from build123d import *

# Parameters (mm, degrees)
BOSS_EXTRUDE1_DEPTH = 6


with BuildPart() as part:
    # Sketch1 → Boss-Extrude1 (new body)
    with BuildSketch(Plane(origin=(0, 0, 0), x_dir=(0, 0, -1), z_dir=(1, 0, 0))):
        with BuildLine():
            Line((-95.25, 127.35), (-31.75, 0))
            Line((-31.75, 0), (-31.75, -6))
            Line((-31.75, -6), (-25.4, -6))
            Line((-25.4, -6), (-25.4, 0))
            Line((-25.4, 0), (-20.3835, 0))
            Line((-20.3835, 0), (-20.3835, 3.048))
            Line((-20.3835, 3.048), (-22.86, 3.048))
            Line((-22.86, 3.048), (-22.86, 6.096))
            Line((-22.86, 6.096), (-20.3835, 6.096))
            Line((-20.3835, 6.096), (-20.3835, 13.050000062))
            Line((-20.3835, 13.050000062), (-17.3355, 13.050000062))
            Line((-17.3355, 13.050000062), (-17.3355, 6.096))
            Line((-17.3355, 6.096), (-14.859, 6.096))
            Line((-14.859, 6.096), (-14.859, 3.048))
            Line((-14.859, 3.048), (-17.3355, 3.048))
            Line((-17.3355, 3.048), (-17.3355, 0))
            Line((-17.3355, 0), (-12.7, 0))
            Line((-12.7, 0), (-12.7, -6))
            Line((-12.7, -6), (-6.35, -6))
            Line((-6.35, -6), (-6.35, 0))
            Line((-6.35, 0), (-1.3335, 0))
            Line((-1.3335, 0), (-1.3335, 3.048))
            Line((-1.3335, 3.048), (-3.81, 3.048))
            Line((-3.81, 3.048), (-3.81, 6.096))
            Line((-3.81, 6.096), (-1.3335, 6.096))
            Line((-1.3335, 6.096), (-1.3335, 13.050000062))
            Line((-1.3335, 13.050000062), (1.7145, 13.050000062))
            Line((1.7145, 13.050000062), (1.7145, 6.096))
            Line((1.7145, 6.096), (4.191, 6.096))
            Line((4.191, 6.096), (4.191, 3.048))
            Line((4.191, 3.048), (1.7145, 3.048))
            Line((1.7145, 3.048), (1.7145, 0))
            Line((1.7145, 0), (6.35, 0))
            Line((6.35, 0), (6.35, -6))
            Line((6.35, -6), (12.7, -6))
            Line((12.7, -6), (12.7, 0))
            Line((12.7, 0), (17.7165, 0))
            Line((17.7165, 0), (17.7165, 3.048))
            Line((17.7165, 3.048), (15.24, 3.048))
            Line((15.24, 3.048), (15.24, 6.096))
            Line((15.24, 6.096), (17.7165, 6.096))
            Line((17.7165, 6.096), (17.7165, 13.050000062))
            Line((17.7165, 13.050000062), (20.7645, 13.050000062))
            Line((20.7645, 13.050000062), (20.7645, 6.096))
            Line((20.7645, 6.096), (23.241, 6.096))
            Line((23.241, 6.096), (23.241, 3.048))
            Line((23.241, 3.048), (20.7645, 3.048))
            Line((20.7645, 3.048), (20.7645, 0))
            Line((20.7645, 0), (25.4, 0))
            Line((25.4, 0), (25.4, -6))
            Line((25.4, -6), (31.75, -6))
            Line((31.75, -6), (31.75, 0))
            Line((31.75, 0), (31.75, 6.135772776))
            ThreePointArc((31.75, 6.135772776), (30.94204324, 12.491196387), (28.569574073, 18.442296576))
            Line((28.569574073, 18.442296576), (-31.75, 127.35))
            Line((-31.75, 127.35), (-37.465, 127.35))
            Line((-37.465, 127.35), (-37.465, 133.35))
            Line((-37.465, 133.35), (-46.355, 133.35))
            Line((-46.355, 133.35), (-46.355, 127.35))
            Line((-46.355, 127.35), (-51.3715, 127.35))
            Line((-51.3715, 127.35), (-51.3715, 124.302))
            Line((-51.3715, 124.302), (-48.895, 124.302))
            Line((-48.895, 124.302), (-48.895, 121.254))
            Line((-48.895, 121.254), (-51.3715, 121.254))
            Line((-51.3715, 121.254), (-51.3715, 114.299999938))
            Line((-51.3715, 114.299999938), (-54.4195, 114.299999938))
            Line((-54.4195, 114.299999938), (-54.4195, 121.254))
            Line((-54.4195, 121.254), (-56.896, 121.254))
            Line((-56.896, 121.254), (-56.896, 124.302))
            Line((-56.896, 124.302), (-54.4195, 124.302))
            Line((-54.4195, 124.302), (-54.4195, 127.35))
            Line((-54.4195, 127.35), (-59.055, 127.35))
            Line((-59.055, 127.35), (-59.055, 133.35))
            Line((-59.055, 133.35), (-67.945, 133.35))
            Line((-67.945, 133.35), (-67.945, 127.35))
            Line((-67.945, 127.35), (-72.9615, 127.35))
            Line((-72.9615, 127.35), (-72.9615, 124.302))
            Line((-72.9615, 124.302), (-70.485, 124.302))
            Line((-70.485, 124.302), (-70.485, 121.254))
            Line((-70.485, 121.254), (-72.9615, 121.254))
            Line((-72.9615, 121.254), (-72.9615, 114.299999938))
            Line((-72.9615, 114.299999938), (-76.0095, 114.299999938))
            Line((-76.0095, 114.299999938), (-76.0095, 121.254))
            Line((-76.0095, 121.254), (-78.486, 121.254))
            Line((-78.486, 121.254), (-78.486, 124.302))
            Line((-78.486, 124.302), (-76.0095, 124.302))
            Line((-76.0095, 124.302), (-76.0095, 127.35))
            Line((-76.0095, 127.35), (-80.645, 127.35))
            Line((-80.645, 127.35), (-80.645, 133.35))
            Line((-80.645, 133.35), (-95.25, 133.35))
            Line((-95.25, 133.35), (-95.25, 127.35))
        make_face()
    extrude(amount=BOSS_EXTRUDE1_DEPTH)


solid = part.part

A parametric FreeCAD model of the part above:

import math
import FreeCAD as App
import Part
import Sketcher
Q = App.Units.Quantity

doc = App.newDocument("Part")
params = doc.addObject("Spreadsheet::Sheet", "Params")
for row, (alias, value) in enumerate([
    ("sketch1_radius", "1 in"),
    ("sketch1_width", "0.12 in"),
    ("sketch1_height", "0.35 in"),
    ("sketch1_height2", "0.225 in"),
    ("sketch1_height3", "0.575 in"),
    ("pad1_length", "6 mm"),
], start=1):
    params.set(f"A{row}", alias)
    params.set(f"B{row}", "=" + value)
    params.setAlias(f"B{row}", alias)

body = doc.addObject("PartDesign::Body", "Body")

sketch1 = body.newObject("Sketcher::SketchObject", "Sketch")
sketch1.AttachmentSupport = (doc.getObject("YZ_Plane"), [""])
sketch1.MapMode = "FlatFace"
sketch1.addGeometry(Part.LineSegment(App.Vector(127.35, 95.25, 0), App.Vector(0, 31.75, 0)), False)
sketch1.addGeometry(Part.LineSegment(App.Vector(0, 31.75, 0), App.Vector(-6, 31.75, 0)), False)
sketch1.addGeometry(Part.LineSegment(App.Vector(-6, 31.75, 0), App.Vector(-6, 25.4, 0)), False)
sketch1.addGeometry(Part.LineSegment(App.Vector(-6, 25.4, 0), App.Vector(0, 25.4, 0)), False)
sketch1.addGeometry(Part.LineSegment(App.Vector(0, 25.4, 0), App.Vector(0, 20.3835, 0)), False)
sketch1.addGeometry(Part.LineSegment(App.Vector(0, 20.3835, 0), App.Vector(3.048, 20.3835, 0)), False)
sketch1.addGeometry(Part.LineSegment(App.Vector(3.048, 20.3835, 0), App.Vector(3.048, 22.86, 0)), False)
sketch1.addGeometry(Part.LineSegment(App.Vector(3.048, 22.86, 0), App.Vector(6.096, 22.86, 0)), False)
sketch1.addGeometry(Part.LineSegment(App.Vector(6.096, 22.86, 0), App.Vector(6.096, 20.3835, 0)), False)
sketch1.addGeometry(Part.LineSegment(App.Vector(6.096, 20.3835, 0), App.Vector(13.05, 20.3835, 0)), False)
sketch1.addGeometry(Part.LineSegment(App.Vector(13.05, 20.3835, 0), App.Vector(13.05, 17.3355, 0)), False)
sketch1.addGeometry(Part.LineSegment(App.Vector(13.05, 17.3355, 0), App.Vector(6.096, 17.3355, 0)), False)
sketch1.addGeometry(Part.LineSegment(App.Vector(6.096, 17.3355, 0), App.Vector(6.096, 14.859, 0)), False)
sketch1.addGeometry(Part.LineSegment(App.Vector(6.096, 14.859, 0), App.Vector(3.048, 14.859, 0)), False)
sketch1.addGeometry(Part.LineSegment(App.Vector(3.048, 14.859, 0), App.Vector(3.048, 17.3355, 0)), False)
sketch1.addGeometry(Part.LineSegment(App.Vector(3.048, 17.3355, 0), App.Vector(0, 17.3355, 0)), False)
sketch1.addGeometry(Part.LineSegment(App.Vector(0, 17.3355, 0), App.Vector(0, 12.7, 0)), False)
sketch1.addGeometry(Part.LineSegment(App.Vector(0, 12.7, 0), App.Vector(-6, 12.7, 0)), False)
sketch1.addGeometry(Part.LineSegment(App.Vector(-6, 12.7, 0), App.Vector(-6, 6.35, 0)), False)
sketch1.addGeometry(Part.LineSegment(App.Vector(-6, 6.35, 0), App.Vector(0, 6.35, 0)), False)
sketch1.addGeometry(Part.LineSegment(App.Vector(0, 6.35, 0), App.Vector(0, 1.3335, 0)), False)
sketch1.addGeometry(Part.LineSegment(App.Vector(0, 1.3335, 0), App.Vector(3.048, 1.3335, 0)), False)
sketch1.addGeometry(Part.LineSegment(App.Vector(3.048, 1.3335, 0), App.Vector(3.048, 3.81, 0)), False)
sketch1.addGeometry(Part.LineSegment(App.Vector(3.048, 3.81, 0), App.Vector(6.096, 3.81, 0)), False)
sketch1.addGeometry(Part.LineSegment(App.Vector(6.096, 3.81, 0), App.Vector(6.096, 1.3335, 0)), False)
sketch1.addGeometry(Part.LineSegment(App.Vector(6.096, 1.3335, 0), App.Vector(13.05, 1.3335, 0)), False)
sketch1.addGeometry(Part.LineSegment(App.Vector(13.05, 1.3335, 0), App.Vector(13.05, -1.7145, 0)), False)
sketch1.addGeometry(Part.LineSegment(App.Vector(13.05, -1.7145, 0), App.Vector(6.096, -1.7145, 0)), False)
sketch1.addGeometry(Part.LineSegment(App.Vector(6.096, -1.7145, 0), App.Vector(6.096, -4.191, 0)), False)
sketch1.addGeometry(Part.LineSegment(App.Vector(6.096, -4.191, 0), App.Vector(3.048, -4.191, 0)), False)
sketch1.addGeometry(Part.LineSegment(App.Vector(3.048, -4.191, 0), App.Vector(3.048, -1.7145, 0)), False)
sketch1.addGeometry(Part.LineSegment(App.Vector(3.048, -1.7145, 0), App.Vector(0, -1.7145, 0)), False)
sketch1.addGeometry(Part.LineSegment(App.Vector(0, -1.7145, 0), App.Vector(0, -6.35, 0)), False)
sketch1.addGeometry(Part.LineSegment(App.Vector(0, -6.35, 0), App.Vector(-6, -6.35, 0)), False)
sketch1.addGeometry(Part.LineSegment(App.Vector(-6, -6.35, 0), App.Vector(-6, -12.7, 0)), False)
sketch1.addGeometry(Part.LineSegment(App.Vector(-6, -12.7, 0), App.Vector(0, -12.7, 0)), False)
sketch1.addGeometry(Part.LineSegment(App.Vector(0, -12.7, 0), App.Vector(0, -17.7165, 0)), False)
sketch1.addGeometry(Part.LineSegment(App.Vector(0, -17.7165, 0), App.Vector(3.048, -17.7165, 0)), False)
sketch1.addGeometry(Part.LineSegment(App.Vector(3.048, -17.7165, 0), App.Vector(3.048, -15.24, 0)), False)
sketch1.addGeometry(Part.LineSegment(App.Vector(3.048, -15.24, 0), App.Vector(6.096, -15.24, 0)), False)
sketch1.addGeometry(Part.LineSegment(App.Vector(6.096, -15.24, 0), App.Vector(6.096, -17.7165, 0)), False)
sketch1.addGeometry(Part.LineSegment(App.Vector(6.096, -17.7165, 0), App.Vector(13.05, -17.7165, 0)), False)
sketch1.addGeometry(Part.LineSegment(App.Vector(13.05, -17.7165, 0), App.Vector(13.05, -20.7645, 0)), False)
sketch1.addGeometry(Part.LineSegment(App.Vector(13.05, -20.7645, 0), App.Vector(6.096, -20.7645, 0)), False)
sketch1.addGeometry(Part.LineSegment(App.Vector(6.096, -20.7645, 0), App.Vector(6.096, -23.241, 0)), False)
sketch1.addGeometry(Part.LineSegment(App.Vector(6.096, -23.241, 0), App.Vector(3.048, -23.241, 0)), False)
sketch1.addGeometry(Part.LineSegment(App.Vector(3.048, -23.241, 0), App.Vector(3.048, -20.7645, 0)), False)
sketch1.addGeometry(Part.LineSegment(App.Vector(3.048, -20.7645, 0), App.Vector(0, -20.7645, 0)), False)
sketch1.addGeometry(Part.LineSegment(App.Vector(0, -20.7645, 0), App.Vector(0, -25.4, 0)), False)
sketch1.addGeometry(Part.LineSegment(App.Vector(0, -25.4, 0), App.Vector(-6, -25.4, 0)), False)
sketch1.addGeometry(Part.LineSegment(App.Vector(-6, -25.4, 0), App.Vector(-6, -31.75, 0)), False)
sketch1.addGeometry(Part.LineSegment(App.Vector(-6, -31.75, 0), App.Vector(6.135773, -31.75, 0)), False)
sketch1.addGeometry(Part.ArcOfCircle(Part.Circle(App.Vector(6.135773, -6.35, 0), App.Vector(0, 0, 1), 25.4), math.radians(-90), math.radians(-61.019704)), False)
sketch1.addGeometry(Part.LineSegment(App.Vector(18.442297, -28.569574, 0), App.Vector(127.35, 31.75, 0)), False)
sketch1.addGeometry(Part.LineSegment(App.Vector(127.35, 31.75, 0), App.Vector(127.35, 37.465, 0)), False)
sketch1.addGeometry(Part.LineSegment(App.Vector(127.35, 37.465, 0), App.Vector(133.35, 37.465, 0)), False)
sketch1.addGeometry(Part.LineSegment(App.Vector(133.35, 37.465, 0), App.Vector(133.35, 46.355, 0)), False)
sketch1.addGeometry(Part.LineSegment(App.Vector(133.35, 46.355, 0), App.Vector(127.35, 46.355, 0)), False)
sketch1.addGeometry(Part.LineSegment(App.Vector(127.35, 46.355, 0), App.Vector(127.35, 51.3715, 0)), False)
sketch1.addGeometry(Part.LineSegment(App.Vector(127.35, 51.3715, 0), App.Vector(124.302, 51.3715, 0)), False)
sketch1.addGeometry(Part.LineSegment(App.Vector(124.302, 51.3715, 0), App.Vector(124.302, 48.895, 0)), False)
sketch1.addGeometry(Part.LineSegment(App.Vector(124.302, 48.895, 0), App.Vector(121.254, 48.895, 0)), False)
sketch1.addGeometry(Part.LineSegment(App.Vector(121.254, 48.895, 0), App.Vector(121.254, 51.3715, 0)), False)
sketch1.addGeometry(Part.LineSegment(App.Vector(121.254, 51.3715, 0), App.Vector(114.3, 51.3715, 0)), False)
sketch1.addGeometry(Part.LineSegment(App.Vector(114.3, 51.3715, 0), App.Vector(114.3, 54.4195, 0)), False)
sketch1.addGeometry(Part.LineSegment(App.Vector(114.3, 54.4195, 0), App.Vector(121.254, 54.4195, 0)), False)
sketch1.addGeometry(Part.LineSegment(App.Vector(121.254, 54.4195, 0), App.Vector(121.254, 56.896, 0)), False)
sketch1.addGeometry(Part.LineSegment(App.Vector(121.254, 56.896, 0), App.Vector(124.302, 56.896, 0)), False)
sketch1.addGeometry(Part.LineSegment(App.Vector(124.302, 56.896, 0), App.Vector(124.302, 54.4195, 0)), False)
sketch1.addGeometry(Part.LineSegment(App.Vector(124.302, 54.4195, 0), App.Vector(127.35, 54.4195, 0)), False)
sketch1.addGeometry(Part.LineSegment(App.Vector(127.35, 54.4195, 0), App.Vector(127.35, 59.055, 0)), False)
sketch1.addGeometry(Part.LineSegment(App.Vector(127.35, 59.055, 0), App.Vector(133.35, 59.055, 0)), False)
sketch1.addGeometry(Part.LineSegment(App.Vector(133.35, 59.055, 0), App.Vector(133.35, 67.945, 0)), False)
sketch1.addGeometry(Part.LineSegment(App.Vector(133.35, 67.945, 0), App.Vector(127.35, 67.945, 0)), False)
sketch1.addGeometry(Part.LineSegment(App.Vector(127.35, 67.945, 0), App.Vector(127.35, 72.9615, 0)), False)
sketch1.addGeometry(Part.LineSegment(App.Vector(127.35, 72.9615, 0), App.Vector(124.302, 72.9615, 0)), False)
sketch1.addGeometry(Part.LineSegment(App.Vector(124.302, 72.9615, 0), App.Vector(124.302, 70.485, 0)), False)
sketch1.addGeometry(Part.LineSegment(App.Vector(124.302, 70.485, 0), App.Vector(121.254, 70.485, 0)), False)
sketch1.addGeometry(Part.LineSegment(App.Vector(121.254, 70.485, 0), App.Vector(121.254, 72.9615, 0)), False)
sketch1.addGeometry(Part.LineSegment(App.Vector(121.254, 72.9615, 0), App.Vector(114.3, 72.9615, 0)), False)
sketch1.addGeometry(Part.LineSegment(App.Vector(114.3, 72.9615, 0), App.Vector(114.3, 76.0095, 0)), False)
sketch1.addGeometry(Part.LineSegment(App.Vector(114.3, 76.0095, 0), App.Vector(121.254, 76.0095, 0)), False)
sketch1.addGeometry(Part.LineSegment(App.Vector(121.254, 76.0095, 0), App.Vector(121.254, 78.486, 0)), False)
sketch1.addGeometry(Part.LineSegment(App.Vector(121.254, 78.486, 0), App.Vector(124.302, 78.486, 0)), False)
sketch1.addGeometry(Part.LineSegment(App.Vector(124.302, 78.486, 0), App.Vector(124.302, 76.0095, 0)), False)
sketch1.addGeometry(Part.LineSegment(App.Vector(124.302, 76.0095, 0), App.Vector(127.35, 76.0095, 0)), False)
sketch1.addGeometry(Part.LineSegment(App.Vector(127.35, 76.0095, 0), App.Vector(127.35, 80.645, 0)), False)
sketch1.addGeometry(Part.LineSegment(App.Vector(127.35, 80.645, 0), App.Vector(133.35, 80.645, 0)), False)
sketch1.addGeometry(Part.LineSegment(App.Vector(133.35, 80.645, 0), App.Vector(133.35, 95.25, 0)), False)
sketch1.addGeometry(Part.LineSegment(App.Vector(133.35, 95.25, 0), App.Vector(127.35, 95.25, 0)), False)
sketch1.addConstraint(Sketcher.Constraint("Coincident", 0, 2, 1, 1))
sketch1.addConstraint(Sketcher.Constraint("Coincident", 1, 2, 2, 1))
sketch1.addConstraint(Sketcher.Constraint("Coincident", 2, 2, 3, 1))
sketch1.addConstraint(Sketcher.Constraint("Coincident", 3, 2, 4, 1))
sketch1.addConstraint(Sketcher.Constraint("Coincident", 4, 2, 5, 1))
sketch1.addConstraint(Sketcher.Constraint("Coincident", 5, 2, 6, 1))
sketch1.addConstraint(Sketcher.Constraint("Coincident", 6, 2, 7, 1))
sketch1.addConstraint(Sketcher.Constraint("Coincident", 7, 2, 8, 1))
sketch1.addConstraint(Sketcher.Constraint("Coincident", 8, 2, 9, 1))
sketch1.addConstraint(Sketcher.Constraint("Coincident", 9, 2, 10, 1))
sketch1.addConstraint(Sketcher.Constraint("Coincident", 10, 2, 11, 1))
sketch1.addConstraint(Sketcher.Constraint("Coincident", 11, 2, 12, 1))
sketch1.addConstraint(Sketcher.Constraint("Coincident", 12, 2, 13, 1))
sketch1.addConstraint(Sketcher.Constraint("Coincident", 13, 2, 14, 1))
sketch1.addConstraint(Sketcher.Constraint("Coincident", 14, 2, 15, 1))
sketch1.addConstraint(Sketcher.Constraint("Coincident", 15, 2, 16, 1))
sketch1.addConstraint(Sketcher.Constraint("Coincident", 16, 2, 17, 1))
sketch1.addConstraint(Sketcher.Constraint("Coincident", 17, 2, 18, 1))
sketch1.addConstraint(Sketcher.Constraint("Coincident", 18, 2, 19, 1))
sketch1.addConstraint(Sketcher.Constraint("Coincident", 19, 2, 20, 1))
sketch1.addConstraint(Sketcher.Constraint("Coincident", 20, 2, 21, 1))
sketch1.addConstraint(Sketcher.Constraint("Coincident", 21, 2, 22, 1))
sketch1.addConstraint(Sketcher.Constraint("Coincident", 22, 2, 23, 1))
sketch1.addConstraint(Sketcher.Constraint("Coincident", 23, 2, 24, 1))
sketch1.addConstraint(Sketcher.Constraint("Coincident", 24, 2, 25, 1))
sketch1.addConstraint(Sketcher.Constraint("Coincident", 25, 2, 26, 1))
sketch1.addConstraint(Sketcher.Constraint("Coincident", 26, 2, 27, 1))
sketch1.addConstraint(Sketcher.Constraint("Coincident", 27, 2, 28, 1))
sketch1.addConstraint(Sketcher.Constraint("Coincident", 28, 2, 29, 1))
sketch1.addConstraint(Sketcher.Constraint("Coincident", 29, 2, 30, 1))
sketch1.addConstraint(Sketcher.Constraint("Coincident", 30, 2, 31, 1))
sketch1.addConstraint(Sketcher.Constraint("Coincident", 31, 2, 32, 1))
sketch1.addConstraint(Sketcher.Constraint("Coincident", 32, 2, 33, 1))
sketch1.addConstraint(Sketcher.Constraint("Coincident", 33, 2, 34, 1))
sketch1.addConstraint(Sketcher.Constraint("Coincident", 34, 2, 35, 1))
sketch1.addConstraint(Sketcher.Constraint("Coincident", 35, 2, 36, 1))
sketch1.addConstraint(Sketcher.Constraint("Coincident", 36, 2, 37, 1))
sketch1.addConstraint(Sketcher.Constraint("Coincident", 37, 2, 38, 1))
sketch1.addConstraint(Sketcher.Constraint("Coincident", 38, 2, 39, 1))
sketch1.addConstraint(Sketcher.Constraint("Coincident", 39, 2, 40, 1))
sketch1.addConstraint(Sketcher.Constraint("Coincident", 40, 2, 41, 1))
sketch1.addConstraint(Sketcher.Constraint("Coincident", 41, 2, 42, 1))
sketch1.addConstraint(Sketcher.Constraint("Coincident", 42, 2, 43, 1))
sketch1.addConstraint(Sketcher.Constraint("Coincident", 43, 2, 44, 1))
sketch1.addConstraint(Sketcher.Constraint("Coincident", 44, 2, 45, 1))
sketch1.addConstraint(Sketcher.Constraint("Coincident", 45, 2, 46, 1))
sketch1.addConstraint(Sketcher.Constraint("Coincident", 46, 2, 47, 1))
sketch1.addConstraint(Sketcher.Constraint("Coincident", 47, 2, 48, 1))
sketch1.addConstraint(Sketcher.Constraint("Coincident", 48, 2, 49, 1))
sketch1.addConstraint(Sketcher.Constraint("Coincident", 49, 2, 50, 1))
sketch1.addConstraint(Sketcher.Constraint("Coincident", 50, 2, 51, 1))
sketch1.addConstraint(Sketcher.Constraint("Tangent", 51, 2, 52, 1))
sketch1.addConstraint(Sketcher.Constraint("Tangent", 52, 2, 53, 1))
sketch1.addConstraint(Sketcher.Constraint("Coincident", 53, 2, 54, 1))
sketch1.addConstraint(Sketcher.Constraint("Coincident", 54, 2, 55, 1))
sketch1.addConstraint(Sketcher.Constraint("Coincident", 55, 2, 56, 1))
sketch1.addConstraint(Sketcher.Constraint("Coincident", 56, 2, 57, 1))
sketch1.addConstraint(Sketcher.Constraint("Coincident", 57, 2, 58, 1))
sketch1.addConstraint(Sketcher.Constraint("Coincident", 58, 2, 59, 1))
sketch1.addConstraint(Sketcher.Constraint("Coincident", 59, 2, 60, 1))
sketch1.addConstraint(Sketcher.Constraint("Coincident", 60, 2, 61, 1))
sketch1.addConstraint(Sketcher.Constraint("Coincident", 61, 2, 62, 1))
sketch1.addConstraint(Sketcher.Constraint("Coincident", 62, 2, 63, 1))
sketch1.addConstraint(Sketcher.Constraint("Coincident", 63, 2, 64, 1))
sketch1.addConstraint(Sketcher.Constraint("Coincident", 64, 2, 65, 1))
sketch1.addConstraint(Sketcher.Constraint("Coincident", 65, 2, 66, 1))
sketch1.addConstraint(Sketcher.Constraint("Coincident", 66, 2, 67, 1))
sketch1.addConstraint(Sketcher.Constraint("Coincident", 67, 2, 68, 1))
sketch1.addConstraint(Sketcher.Constraint("Coincident", 68, 2, 69, 1))
sketch1.addConstraint(Sketcher.Constraint("Coincident", 69, 2, 70, 1))
sketch1.addConstraint(Sketcher.Constraint("Coincident", 70, 2, 71, 1))
sketch1.addConstraint(Sketcher.Constraint("Coincident", 71, 2, 72, 1))
sketch1.addConstraint(Sketcher.Constraint("Coincident", 72, 2, 73, 1))
sketch1.addConstraint(Sketcher.Constraint("Coincident", 73, 2, 74, 1))
sketch1.addConstraint(Sketcher.Constraint("Coincident", 74, 2, 75, 1))
sketch1.addConstraint(Sketcher.Constraint("Coincident", 75, 2, 76, 1))
sketch1.addConstraint(Sketcher.Constraint("Coincident", 76, 2, 77, 1))
sketch1.addConstraint(Sketcher.Constraint("Coincident", 77, 2, 78, 1))
sketch1.addConstraint(Sketcher.Constraint("Coincident", 78, 2, 79, 1))
sketch1.addConstraint(Sketcher.Constraint("Coincident", 79, 2, 80, 1))
sketch1.addConstraint(Sketcher.Constraint("Coincident", 80, 2, 81, 1))
sketch1.addConstraint(Sketcher.Constraint("Coincident", 81, 2, 82, 1))
sketch1.addConstraint(Sketcher.Constraint("Coincident", 82, 2, 83, 1))
sketch1.addConstraint(Sketcher.Constraint("Coincident", 83, 2, 84, 1))
sketch1.addConstraint(Sketcher.Constraint("Coincident", 84, 2, 85, 1))
sketch1.addConstraint(Sketcher.Constraint("Coincident", 85, 2, 86, 1))
sketch1.addConstraint(Sketcher.Constraint("Coincident", 86, 2, 87, 1))
sketch1.addConstraint(Sketcher.Constraint("Coincident", 87, 2, 88, 1))
sketch1.addConstraint(Sketcher.Constraint("Coincident", 88, 2, 89, 1))
sketch1.addConstraint(Sketcher.Constraint("Coincident", 89, 2, 0, 1))
sketch1.addConstraint(Sketcher.Constraint("Horizontal", 1))
sketch1.addConstraint(Sketcher.Constraint("Vertical", 2))
sketch1.addConstraint(Sketcher.Constraint("Horizontal", 3))
sketch1.addConstraint(Sketcher.Constraint("Vertical", 4))
sketch1.addConstraint(Sketcher.Constraint("Horizontal", 5))
sketch1.addConstraint(Sketcher.Constraint("Vertical", 6))
sketch1.addConstraint(Sketcher.Constraint("Horizontal", 7))
sketch1.addConstraint(Sketcher.Constraint("Vertical", 8))
sketch1.addConstraint(Sketcher.Constraint("Horizontal", 9))
sketch1.addConstraint(Sketcher.Constraint("Vertical", 10))
sketch1.addConstraint(Sketcher.Constraint("Horizontal", 11))
sketch1.addConstraint(Sketcher.Constraint("Vertical", 12))
sketch1.addConstraint(Sketcher.Constraint("Horizontal", 13))
sketch1.addConstraint(Sketcher.Constraint("Vertical", 14))
sketch1.addConstraint(Sketcher.Constraint("Horizontal", 15))
sketch1.addConstraint(Sketcher.Constraint("Vertical", 16))
sketch1.addConstraint(Sketcher.Constraint("Horizontal", 17))
sketch1.addConstraint(Sketcher.Constraint("Vertical", 18))
sketch1.addConstraint(Sketcher.Constraint("Horizontal", 19))
sketch1.addConstraint(Sketcher.Constraint("Vertical", 20))
sketch1.addConstraint(Sketcher.Constraint("Horizontal", 21))
sketch1.addConstraint(Sketcher.Constraint("Vertical", 22))
sketch1.addConstraint(Sketcher.Constraint("Horizontal", 23))
sketch1.addConstraint(Sketcher.Constraint("Vertical", 24))
sketch1.addConstraint(Sketcher.Constraint("Horizontal", 25))
sketch1.addConstraint(Sketcher.Constraint("Vertical", 26))
sketch1.addConstraint(Sketcher.Constraint("Horizontal", 27))
sketch1.addConstraint(Sketcher.Constraint("Vertical", 28))
sketch1.addConstraint(Sketcher.Constraint("Horizontal", 29))
sketch1.addConstraint(Sketcher.Constraint("Vertical", 30))
sketch1.addConstraint(Sketcher.Constraint("Horizontal", 31))
sketch1.addConstraint(Sketcher.Constraint("Vertical", 32))
sketch1.addConstraint(Sketcher.Constraint("Horizontal", 33))
sketch1.addConstraint(Sketcher.Constraint("Vertical", 34))
sketch1.addConstraint(Sketcher.Constraint("Horizontal", 35))
sketch1.addConstraint(Sketcher.Constraint("Vertical", 36))
sketch1.addConstraint(Sketcher.Constraint("Horizontal", 37))
sketch1.addConstraint(Sketcher.Constraint("Vertical", 38))
sketch1.addConstraint(Sketcher.Constraint("Horizontal", 39))
sketch1.addConstraint(Sketcher.Constraint("Vertical", 40))
sketch1.addConstraint(Sketcher.Constraint("Horizontal", 41))
sketch1.addConstraint(Sketcher.Constraint("Vertical", 42))
sketch1.addConstraint(Sketcher.Constraint("Horizontal", 43))
sketch1.addConstraint(Sketcher.Constraint("Vertical", 44))
sketch1.addConstraint(Sketcher.Constraint("Horizontal", 45))
sketch1.addConstraint(Sketcher.Constraint("Vertical", 46))
sketch1.addConstraint(Sketcher.Constraint("Horizontal", 47))
sketch1.addConstraint(Sketcher.Constraint("Vertical", 48))
sketch1.addConstraint(Sketcher.Constraint("Horizontal", 49))
sketch1.addConstraint(Sketcher.Constraint("Vertical", 50))
sketch1.addConstraint(Sketcher.Constraint("Horizontal", 51))
sketch1.addConstraint(Sketcher.Constraint("Vertical", 54))
sketch1.addConstraint(Sketcher.Constraint("Horizontal", 55))
sketch1.addConstraint(Sketcher.Constraint("Vertical", 56))
sketch1.addConstraint(Sketcher.Constraint("Horizontal", 57))
sketch1.addConstraint(Sketcher.Constraint("Vertical", 58))
sketch1.addConstraint(Sketcher.Constraint("Horizontal", 59))
sketch1.addConstraint(Sketcher.Constraint("Vertical", 60))
sketch1.addConstraint(Sketcher.Constraint("Horizontal", 61))
sketch1.addConstraint(Sketcher.Constraint("Vertical", 62))
sketch1.addConstraint(Sketcher.Constraint("Horizontal", 63))
sketch1.addConstraint(Sketcher.Constraint("Vertical", 64))
sketch1.addConstraint(Sketcher.Constraint("Horizontal", 65))
sketch1.addConstraint(Sketcher.Constraint("Vertical", 66))
sketch1.addConstraint(Sketcher.Constraint("Horizontal", 67))
sketch1.addConstraint(Sketcher.Constraint("Vertical", 68))
sketch1.addConstraint(Sketcher.Constraint("Horizontal", 69))
sketch1.addConstraint(Sketcher.Constraint("Vertical", 70))
sketch1.addConstraint(Sketcher.Constraint("Horizontal", 71))
sketch1.addConstraint(Sketcher.Constraint("Vertical", 72))
sketch1.addConstraint(Sketcher.Constraint("Horizontal", 73))
sketch1.addConstraint(Sketcher.Constraint("Vertical", 74))
sketch1.addConstraint(Sketcher.Constraint("Horizontal", 75))
sketch1.addConstraint(Sketcher.Constraint("Vertical", 76))
sketch1.addConstraint(Sketcher.Constraint("Horizontal", 77))
sketch1.addConstraint(Sketcher.Constraint("Vertical", 78))
sketch1.addConstraint(Sketcher.Constraint("Horizontal", 79))
sketch1.addConstraint(Sketcher.Constraint("Vertical", 80))
sketch1.addConstraint(Sketcher.Constraint("Horizontal", 81))
sketch1.addConstraint(Sketcher.Constraint("Vertical", 82))
sketch1.addConstraint(Sketcher.Constraint("Horizontal", 83))
sketch1.addConstraint(Sketcher.Constraint("Vertical", 84))
sketch1.addConstraint(Sketcher.Constraint("Horizontal", 85))
sketch1.addConstraint(Sketcher.Constraint("Vertical", 86))
sketch1.addConstraint(Sketcher.Constraint("Horizontal", 87))
sketch1.addConstraint(Sketcher.Constraint("Vertical", 88))
sketch1.addConstraint(Sketcher.Constraint("Horizontal", 89))
sketch1.addConstraint(Sketcher.Constraint("Symmetric", 19, 2, 32, 2, -1, 1))
sketch1.addConstraint(Sketcher.Constraint("Symmetric", 16, 2, 35, 2, -1, 1))
sketch1.addConstraint(Sketcher.Constraint("Symmetric", 3, 2, 48, 2, -1, 1))
sketch1.addConstraint(Sketcher.Constraint("Symmetric", 1, 2, 50, 2, -1))
sketch1.addConstraint(Sketcher.Constraint("PointOnObject", 0, 2, -2))
sketch1.addConstraint(Sketcher.Constraint("PointOnObject", 3, 2, -2))
sketch1.addConstraint(Sketcher.Constraint("PointOnObject", 15, 2, -2))
sketch1.addConstraint(Sketcher.Constraint("PointOnObject", 19, 2, -2))
sketch1.addConstraint(Sketcher.Constraint("Horizontal", 5, 2, 8, 2))
sketch1.addConstraint(Sketcher.Constraint("Horizontal", 11, 2, 14, 2))
sketch1.addConstraint(Sketcher.Constraint("Horizontal", 21, 2, 24, 2))
sketch1.addConstraint(Sketcher.Constraint("Horizontal", 27, 2, 30, 2))
sketch1.addConstraint(Sketcher.Constraint("Horizontal", 52, 3, 32, 2))
sketch1.addConstraint(Sketcher.Constraint("Horizontal", 37, 2, 40, 2))
sketch1.addConstraint(Sketcher.Constraint("Horizontal", 43, 2, 46, 2))
sketch1.addConstraint(Sketcher.Constraint("Horizontal", 1, 2, 53, 2))
sketch1.addConstraint(Sketcher.Constraint("Horizontal", 59, 2, 62, 2))
sketch1.addConstraint(Sketcher.Constraint("Horizontal", 65, 2, 68, 2))
sketch1.addConstraint(Sketcher.Constraint("Horizontal", 75, 2, 78, 2))
sketch1.addConstraint(Sketcher.Constraint("Horizontal", 81, 2, 84, 2))
sketch1.addConstraint(Sketcher.Constraint("Vertical", 8, 2, 11, 2))
sketch1.addConstraint(Sketcher.Constraint("Vertical", 6, 2, 13, 2))
sketch1.addConstraint(Sketcher.Constraint("Vertical", 2, 2, 17, 2))
sketch1.addConstraint(Sketcher.Constraint("Vertical", 14, 2, 21, 2))
sketch1.addConstraint(Sketcher.Constraint("Vertical", 12, 2, 23, 2))
sketch1.addConstraint(Sketcher.Constraint("Vertical", 10, 2, 25, 2))
sketch1.addConstraint(Sketcher.Constraint("Vertical", 24, 2, 27, 2))
sketch1.addConstraint(Sketcher.Constraint("Vertical", 22, 2, 29, 2))
sketch1.addConstraint(Sketcher.Constraint("Vertical", 18, 2, 33, 2))
sketch1.addConstraint(Sketcher.Constraint("Vertical", 30, 2, 37, 2))
sketch1.addConstraint(Sketcher.Constraint("Vertical", 28, 2, 39, 2))
sketch1.addConstraint(Sketcher.Constraint("Vertical", 26, 2, 41, 2))
sketch1.addConstraint(Sketcher.Constraint("Vertical", 40, 2, 43, 2))
sketch1.addConstraint(Sketcher.Constraint("Vertical", 38, 2, 45, 2))
sketch1.addConstraint(Sketcher.Constraint("Vertical", 54, 2, 57, 2))
sketch1.addConstraint(Sketcher.Constraint("Vertical", 62, 2, 65, 2))
sketch1.addConstraint(Sketcher.Constraint("Vertical", 60, 2, 67, 2))
sketch1.addConstraint(Sketcher.Constraint("Vertical", 58, 2, 69, 2))
sketch1.addConstraint(Sketcher.Constraint("Vertical", 56, 2, 71, 2))
sketch1.addConstraint(Sketcher.Constraint("Vertical", 70, 2, 73, 2))
sketch1.addConstraint(Sketcher.Constraint("Vertical", 68, 2, 75, 2))
sketch1.addConstraint(Sketcher.Constraint("Vertical", 66, 2, 77, 2))
sketch1.addConstraint(Sketcher.Constraint("Vertical", 64, 2, 79, 2))
sketch1.addConstraint(Sketcher.Constraint("Vertical", 78, 2, 81, 2))
sketch1.addConstraint(Sketcher.Constraint("Vertical", 76, 2, 83, 2))
sketch1.addConstraint(Sketcher.Constraint("Vertical", 74, 2, 85, 2))
sketch1.addConstraint(Sketcher.Constraint("Vertical", 72, 2, 87, 2))
sketch1.addConstraint(Sketcher.Constraint("Vertical", 86, 2, 89, 2))
sketch1.addConstraint(Sketcher.Constraint("Equal", 5, 7))
sketch1.addConstraint(Sketcher.Constraint("Equal", 49, 55))
sketch1.addConstraint(Sketcher.Constraint("Equal", 47, 59))
sketch1.addConstraint(Sketcher.Constraint("Equal", 59, 61))
sketch1.addConstraint(Sketcher.Constraint("Equal", 43, 63))
sketch1.addConstraint(Sketcher.Constraint("Equal", 85, 10))
sketch1.addConstraint(Sketcher.Constraint("Equal", 8, 12))
sketch1.addConstraint(Sketcher.Constraint("Equal", 2, 18))
sketch1.addConstraint(Sketcher.Constraint("Equal", 4, 20))
sketch1.addConstraint(Sketcher.Constraint("Equal", 14, 22))
sketch1.addConstraint(Sketcher.Constraint("Equal", 10, 26))
sketch1.addConstraint(Sketcher.Constraint("Equal", 24, 28))
sketch1.addConstraint(Sketcher.Constraint("Equal", 16, 32))
sketch1.addConstraint(Sketcher.Constraint("Equal", 20, 36))
sketch1.addConstraint(Sketcher.Constraint("Equal", 30, 38))
sketch1.addConstraint(Sketcher.Constraint("Equal", 26, 42))
sketch1.addConstraint(Sketcher.Constraint("Equal", 40, 44))
sketch1.addConstraint(Sketcher.Constraint("Equal", 36, 58))
sketch1.addConstraint(Sketcher.Constraint("Equal", 46, 60))
sketch1.addConstraint(Sketcher.Constraint("Equal", 42, 64))
sketch1.addConstraint(Sketcher.Constraint("Equal", 62, 66))
sketch1.addConstraint(Sketcher.Constraint("Equal", 48, 70))
sketch1.addConstraint(Sketcher.Constraint("Equal", 56, 72))
sketch1.addConstraint(Sketcher.Constraint("Equal", 58, 74))
sketch1.addConstraint(Sketcher.Constraint("Equal", 68, 76))
sketch1.addConstraint(Sketcher.Constraint("Equal", 64, 80))
sketch1.addConstraint(Sketcher.Constraint("Equal", 78, 82))
sketch1.addConstraint(Sketcher.Constraint("Equal", 70, 86))
sketch1.addConstraint(Sketcher.Constraint("Radius", 52, Q("1 in")))
sketch1.addConstraint(Sketcher.Constraint("DistanceY", -1, 1, 2, 2, Q("1 in")))
sketch1.addConstraint(Sketcher.Constraint("DistanceX", 5, 1, 5, 2, Q("0.12 in")))
sketch1.addConstraint(Sketcher.Constraint("DistanceY", 56, 1, 56, 2, Q("0.35 in")))
sketch1.addConstraint(Sketcher.Constraint("DistanceY", -1, 1, 6, 2, Q("0.9 in")))
sketch1.addConstraint(Sketcher.Constraint("DistanceX", -1, 1, 63, 2, Q("4.5 in")))
sketch1.addConstraint(Sketcher.Constraint("DistanceY", 54, 1, 54, 2, Q("0.225 in")))
sketch1.addConstraint(Sketcher.Constraint("DistanceY", 88, 1, 88, 2, Q("0.575 in")))
sketch1.addConstraint(Sketcher.Constraint("DistanceX", -1, 1, 55, 2, Q("5.25 in")))
sketch1.addConstraint(Sketcher.Constraint("DistanceY", -1, 1, 66, 2, Q("2.24 in")))
sketch1.addConstraint(Sketcher.Constraint("DistanceX", 1, 2, 1, 1, Q("6 mm")))
sketch1.addConstraint(Sketcher.Constraint("Distance", 53, Q("124.496341 mm")))
sketch1.setExpression("Constraints[253]", "Params.sketch1_radius")
sketch1.setExpression("Constraints[255]", "Params.sketch1_width")
sketch1.setExpression("Constraints[256]", "Params.sketch1_height")
sketch1.setExpression("Constraints[259]", "Params.sketch1_height2")
sketch1.setExpression("Constraints[260]", "Params.sketch1_height3")
pad1 = body.newObject("PartDesign::Pad", "Pad")
pad1.Profile = sketch1
pad1.setExpression("Length", "Params.pad1_length")

doc.recompute()
